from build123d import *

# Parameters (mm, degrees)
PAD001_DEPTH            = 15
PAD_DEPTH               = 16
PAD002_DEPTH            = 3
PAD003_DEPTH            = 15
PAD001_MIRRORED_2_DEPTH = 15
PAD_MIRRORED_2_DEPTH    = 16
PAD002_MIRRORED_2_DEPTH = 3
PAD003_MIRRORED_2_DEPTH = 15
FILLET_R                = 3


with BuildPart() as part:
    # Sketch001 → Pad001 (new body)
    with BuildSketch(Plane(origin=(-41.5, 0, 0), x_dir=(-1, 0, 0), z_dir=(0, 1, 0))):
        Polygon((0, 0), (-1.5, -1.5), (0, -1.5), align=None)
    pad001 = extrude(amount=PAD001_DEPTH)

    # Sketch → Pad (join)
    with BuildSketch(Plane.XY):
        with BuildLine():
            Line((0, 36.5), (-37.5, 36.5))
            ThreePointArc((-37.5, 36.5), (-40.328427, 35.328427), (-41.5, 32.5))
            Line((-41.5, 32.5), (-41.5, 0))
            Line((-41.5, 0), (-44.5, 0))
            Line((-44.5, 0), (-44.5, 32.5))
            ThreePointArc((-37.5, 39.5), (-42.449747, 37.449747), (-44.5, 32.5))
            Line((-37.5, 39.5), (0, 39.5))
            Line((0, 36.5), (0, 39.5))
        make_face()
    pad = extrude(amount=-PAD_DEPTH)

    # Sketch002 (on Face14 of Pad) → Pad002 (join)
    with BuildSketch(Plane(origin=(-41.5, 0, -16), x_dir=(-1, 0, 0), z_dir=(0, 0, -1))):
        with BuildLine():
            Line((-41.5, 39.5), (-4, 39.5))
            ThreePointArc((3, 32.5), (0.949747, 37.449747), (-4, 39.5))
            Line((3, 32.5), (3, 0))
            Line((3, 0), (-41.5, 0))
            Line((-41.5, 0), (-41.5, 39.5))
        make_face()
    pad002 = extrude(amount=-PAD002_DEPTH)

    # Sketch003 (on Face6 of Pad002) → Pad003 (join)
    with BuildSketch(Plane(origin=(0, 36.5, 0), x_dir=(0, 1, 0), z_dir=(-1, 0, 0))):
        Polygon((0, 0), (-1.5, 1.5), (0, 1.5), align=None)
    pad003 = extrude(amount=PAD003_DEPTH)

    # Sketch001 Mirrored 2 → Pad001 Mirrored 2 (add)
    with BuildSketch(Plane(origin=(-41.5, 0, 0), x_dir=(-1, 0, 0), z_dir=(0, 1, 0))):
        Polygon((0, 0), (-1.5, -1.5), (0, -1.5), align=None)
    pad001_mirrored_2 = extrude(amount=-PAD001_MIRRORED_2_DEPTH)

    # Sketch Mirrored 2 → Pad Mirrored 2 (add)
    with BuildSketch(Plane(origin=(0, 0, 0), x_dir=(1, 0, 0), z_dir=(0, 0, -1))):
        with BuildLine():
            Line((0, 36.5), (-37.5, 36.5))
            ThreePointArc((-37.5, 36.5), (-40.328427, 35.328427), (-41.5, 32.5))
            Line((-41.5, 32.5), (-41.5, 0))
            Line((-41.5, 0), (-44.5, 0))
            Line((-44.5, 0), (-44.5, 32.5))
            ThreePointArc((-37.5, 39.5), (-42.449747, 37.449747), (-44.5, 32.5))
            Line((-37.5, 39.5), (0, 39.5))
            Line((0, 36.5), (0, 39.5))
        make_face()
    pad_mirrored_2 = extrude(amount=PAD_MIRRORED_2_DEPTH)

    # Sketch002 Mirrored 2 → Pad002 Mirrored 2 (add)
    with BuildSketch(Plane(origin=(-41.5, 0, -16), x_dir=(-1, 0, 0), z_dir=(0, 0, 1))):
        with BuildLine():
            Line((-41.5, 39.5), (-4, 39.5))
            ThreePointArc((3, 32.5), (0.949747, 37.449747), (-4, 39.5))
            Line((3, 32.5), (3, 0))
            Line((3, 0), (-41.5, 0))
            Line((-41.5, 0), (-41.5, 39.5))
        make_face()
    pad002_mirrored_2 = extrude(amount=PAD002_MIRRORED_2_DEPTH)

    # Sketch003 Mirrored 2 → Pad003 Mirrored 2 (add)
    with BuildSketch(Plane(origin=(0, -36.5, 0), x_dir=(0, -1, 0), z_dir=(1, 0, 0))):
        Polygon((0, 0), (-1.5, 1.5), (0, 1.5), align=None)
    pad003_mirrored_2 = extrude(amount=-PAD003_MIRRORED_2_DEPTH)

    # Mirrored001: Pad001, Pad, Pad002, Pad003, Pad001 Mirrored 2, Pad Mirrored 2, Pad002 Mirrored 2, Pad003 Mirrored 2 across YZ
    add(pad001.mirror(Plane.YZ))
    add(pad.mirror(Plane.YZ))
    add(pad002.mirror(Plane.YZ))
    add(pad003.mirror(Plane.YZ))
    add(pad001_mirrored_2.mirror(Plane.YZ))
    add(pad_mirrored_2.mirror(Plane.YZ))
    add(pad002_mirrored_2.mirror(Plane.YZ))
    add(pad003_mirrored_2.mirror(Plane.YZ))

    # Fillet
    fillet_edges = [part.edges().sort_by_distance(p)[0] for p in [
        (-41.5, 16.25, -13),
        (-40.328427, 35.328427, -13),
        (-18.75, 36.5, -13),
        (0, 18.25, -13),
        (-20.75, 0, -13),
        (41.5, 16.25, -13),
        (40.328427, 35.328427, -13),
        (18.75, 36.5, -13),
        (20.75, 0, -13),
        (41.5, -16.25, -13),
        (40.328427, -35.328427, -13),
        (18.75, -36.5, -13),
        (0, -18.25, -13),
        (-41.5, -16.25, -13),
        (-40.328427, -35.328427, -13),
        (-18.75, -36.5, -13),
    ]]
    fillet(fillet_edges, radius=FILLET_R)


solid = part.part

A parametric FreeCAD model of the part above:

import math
import FreeCAD as App
import Part
import Sketcher

V = App.Vector


def edges_at(feature, points):
    """Names of the edges that pass closest to the given points."""
    edges = feature.Shape.Edges
    near = lambda p: min(range(len(edges)), key=lambda i: edges[i].distToShape(Part.Vertex(*p))[0])
    return sorted({f"Edge{near(p) + 1}" for p in points})


def add_polygon(sketch, points):
    """Adds a closed chain of lines whose ends are joined by coincident constraints."""
    first, n = sketch.GeometryCount, len(points)
    for a, b in zip(points, points[1:] + points[:1]):
        sketch.addGeometry(Part.LineSegment(App.Vector(*a, 0), App.Vector(*b, 0)), False)
    for i in range(n):
        sketch.addConstraint(Sketcher.Constraint("Coincident", first + i, 2, first + (i + 1) % n, 1))

doc = App.newDocument("Part")
params = doc.addObject("Spreadsheet::Sheet", "Params")
for row, (alias, value) in enumerate([
    ("sketch1_width", "1.5 mm"),
    ("pad1_length", "15 mm"),
    ("sketch2_radius", "7.000002 mm"),
    ("sketch2_radius2", "4 mm"),
    ("sketch2_width", "37.5 mm"),
    ("sketch2_height", "32.5 mm"),
    ("pad2_length", "16 mm"),
    ("sketch3_radius", "7.000002 mm"),
    ("sketch3_width", "37.5 mm"),
    ("sketch3_height", "39.5 mm"),
    ("pad3_length", "3 mm"),
    ("sketch4_width", "1.5 mm"),
    ("pad4_length", "15 mm"),
    ("sketch5_width", "1.5 mm"),
    ("pad5_length", "15 mm"),
    ("sketch6_radius", "7.000002 mm"),
    ("sketch6_radius2", "4 mm"),
    ("sketch6_width", "37.5 mm"),
    ("sketch6_height", "32.5 mm"),
    ("pad6_length", "16 mm"),
    ("sketch7_radius", "7.000002 mm"),
    ("sketch7_width", "37.5 mm"),
    ("sketch7_height", "39.5 mm"),
    ("pad7_length", "3 mm"),
    ("sketch8_width", "1.5 mm"),
    ("pad8_length", "15 mm"),
    ("fillet_radius", "3 mm"),
], start=1):
    params.set(f"A{row}", alias)
    params.set(f"B{row}", "=" + value)
    params.setAlias(f"B{row}", alias)

body = doc.addObject("PartDesign::Body", "Body")

# Sketch on XZ plane
sketch1 = doc.addObject("Sketcher::SketchObject", "Sketch")
body.addObject(sketch1)
sketch1.AttachmentSupport = (doc.XZ_Plane, [""])
sketch1.MapMode = "FlatFace"
add_polygon(sketch1, [(-41.5, 0), (-40, -1.5), (-41.5, -1.5)])  # lines 0-2
sketch1.addConstraint(Sketcher.Constraint("Horizontal", 1))
sketch1.addConstraint(Sketcher.Constraint("Vertical", 2))
sketch1.addConstraint(Sketcher.Constraint("PointOnObject", 2, 2, -1))
sketch1.addConstraint(Sketcher.Constraint("Equal", 1, 2))
sketch1.addConstraint(Sketcher.Constraint("DistanceX", 1, 2, 1, 1, 1.5))
sketch1.addConstraint(Sketcher.Constraint("DistanceX", 0, 2, -1, 1, 40.0))
sketch1.setExpression("Constraints[7]", "Params.sketch1_width")
pad1 = doc.addObject("PartDesign::Pad", "Pad")
body.addObject(pad1)
pad1.Profile = sketch1
pad1.setExpression("Length", "Params.pad1_length")
pad1.Reversed = True

# Sketch on XY plane
sketch2 = doc.addObject("Sketcher::SketchObject", "Sketch001")
body.addObject(sketch2)
sketch2.AttachmentSupport = (doc.XY_Plane, [""])
sketch2.MapMode = "FlatFace"
sketch2.addGeometry(Part.LineSegment(V(-37.5, 36.5, 0), V(0, 36.5, 0)), False)
sketch2.addGeometry(Part.LineSegment(V(0, 36.5, 0), V(0, 39.5, 0)), False)
sketch2.addGeometry(Part.LineSegment(V(0, 39.5, 0), V(-37.5, 39.5, 0)), False)
sketch2.addGeometry(Part.ArcOfCircle(Part.Circle(V(-37.499998, 32.499998, 0), V(0, 0, 1), 7.000002), math.radians(90.000013), math.radians(179.999987)), False)
sketch2.addGeometry(Part.LineSegment(V(-44.5, 32.5, 0), V(-44.5, 0, 0)), False)
sketch2.addGeometry(Part.LineSegment(V(-44.5, 0, 0), V(-41.5, 0, 0)), False)
sketch2.addGeometry(Part.LineSegment(V(-41.5, 0, 0), V(-41.5, 32.5, 0)), False)
sketch2.addGeometry(Part.ArcOfCircle(Part.Circle(V(-37.5, 32.5, 0), V(0, 0, 1), 4), math.radians(90.000006), math.radians(179.999994)), False)
sketch2.addConstraint(Sketcher.Constraint("Coincident", 0, 2, 1, 1))
sketch2.addConstraint(Sketcher.Constraint("Coincident", 1, 2, 2, 1))
sketch2.addConstraint(Sketcher.Constraint("Tangent", 2, 2, 3, 1))
sketch2.addConstraint(Sketcher.Constraint("Tangent", 3, 2, 4, 1))
sketch2.addConstraint(Sketcher.Constraint("Coincident", 4, 2, 5, 1))
sketch2.addConstraint(Sketcher.Constraint("Coincident", 5, 2, 6, 1))
sketch2.addConstraint(Sketcher.Constraint("Tangent", 6, 2, 7, 2))
sketch2.addConstraint(Sketcher.Constraint("Tangent", 7, 1, 0, 1))
sketch2.addConstraint(Sketcher.Constraint("Horizontal", 0))
sketch2.addConstraint(Sketcher.Constraint("Vertical", 1))
sketch2.addConstraint(Sketcher.Constraint("Horizontal", 2))
sketch2.addConstraint(Sketcher.Constraint("Vertical", 4))
sketch2.addConstraint(Sketcher.Constraint("Horizontal", 5))
sketch2.addConstraint(Sketcher.Constraint("Vertical", 6))
sketch2.addConstraint(Sketcher.Constraint("Coincident", 7, 3, 3, 3))
sketch2.addConstraint(Sketcher.Constraint("PointOnObject", 0, 2, -2))
sketch2.addConstraint(Sketcher.Constraint("PointOnObject", 4, 2, -1))
sketch2.addConstraint(Sketcher.Constraint("Radius", 3, 7.000002))
sketch2.addConstraint(Sketcher.Constraint("Radius", 7, 4.0))
sketch2.addConstraint(Sketcher.Constraint("DistanceX", 0, 1, 0, 2, 37.5))
sketch2.addConstraint(Sketcher.Constraint("DistanceY", 4, 2, 4, 1, 32.5))
sketch2.setExpression("Constraints[17]", "Params.sketch2_radius")
sketch2.setExpression("Constraints[18]", "Params.sketch2_radius2")
sketch2.setExpression("Constraints[19]", "Params.sketch2_width")
sketch2.setExpression("Constraints[20]", "Params.sketch2_height")
pad2 = doc.addObject("PartDesign::Pad", "Pad001")
body.addObject(pad2)
pad2.Profile = sketch2
pad2.setExpression("Length", "Params.pad2_length")
pad2.Reversed = True

# Sketch on XY plane
sketch3 = doc.addObject("Sketcher::SketchObject", "Sketch002")
body.addObject(sketch3)
sketch3.AttachmentSupport = (doc.XY_Plane, [""])
sketch3.MapMode = "FlatFace"
sketch3.AttachmentOffset = App.Placement(V(0, 0, -16), App.Rotation())
sketch3.addGeometry(Part.LineSegment(V(-37.5, 39.5, 0), V(0, 39.5, 0)), False)
sketch3.addGeometry(Part.LineSegment(V(0, 39.5, 0), V(0, 0, 0)), False)
sketch3.addGeometry(Part.LineSegment(V(0, 0, 0), V(-44.5, 0, 0)), False)
sketch3.addGeometry(Part.LineSegment(V(-44.5, 0, 0), V(-44.5, 32.5, 0)), False)
sketch3.addGeometry(Part.ArcOfCircle(Part.Circle(V(-37.499998, 32.499998, 0), V(0, 0, 1), 7.000002), math.radians(90.000013), math.radians(179.999987)), False)
sketch3.addConstraint(Sketcher.Constraint("Coincident", 0, 2, 1, 1))
sketch3.addConstraint(Sketcher.Constraint("Coincident", 1, 2, 2, 1))
sketch3.addConstraint(Sketcher.Constraint("Coincident", 2, 2, 3, 1))
sketch3.addConstraint(Sketcher.Constraint("Tangent", 3, 2, 4, 2))
sketch3.addConstraint(Sketcher.Constraint("Tangent", 4, 1, 0, 1))
sketch3.addConstraint(Sketcher.Constraint("Horizontal", 0))
sketch3.addConstraint(Sketcher.Constraint("Vertical", 1))
sketch3.addConstraint(Sketcher.Constraint("Horizontal", 2))
sketch3.addConstraint(Sketcher.Constraint("Vertical", 3))
sketch3.addConstraint(Sketcher.Constraint("Coincident", 1, 2, -1, 1))
sketch3.addConstraint(Sketcher.Constraint("Radius", 4, 7.000002))
sketch3.addConstraint(Sketcher.Constraint("DistanceX", 0, 1, 0, 2, 37.5))
sketch3.addConstraint(Sketcher.Constraint("DistanceY", 1, 2, 1, 1, 39.5))
sketch3.setExpression("Constraints[10]", "Params.sketch3_radius")
sketch3.setExpression("Constraints[11]", "Params.sketch3_width")
sketch3.setExpression("Constraints[12]", "Params.sketch3_height")
pad3 = doc.addObject("PartDesign::Pad", "Pad002")
body.addObject(pad3)
pad3.Profile = sketch3
pad3.setExpression("Length", "Params.pad3_length")

# Sketch on YZ plane
sketch4 = doc.addObject("Sketcher::SketchObject", "Sketch003")
body.addObject(sketch4)
sketch4.AttachmentSupport = (doc.YZ_Plane, [""])
sketch4.MapMode = "FlatFace"
add_polygon(sketch4, [(35, -1.5), (36.5, 0), (36.5, -1.5)])  # lines 0-2
sketch4.addConstraint(Sketcher.Constraint("Vertical", 1))
sketch4.addConstraint(Sketcher.Constraint("Horizontal", 2))
sketch4.addConstraint(Sketcher.Constraint("PointOnObject", 0, 2, -1))
sketch4.addConstraint(Sketcher.Constraint("Equal", 2, 1))
sketch4.addConstraint(Sketcher.Constraint("DistanceX", 2, 2, 2, 1, 1.5))
sketch4.addConstraint(Sketcher.Constraint("DistanceX", -1, 1, 2, 2, 35.0))
sketch4.setExpression("Constraints[7]", "Params.sketch4_width")
pad4 = doc.addObject("PartDesign::Pad", "Pad003")
body.addObject(pad4)
pad4.Profile = sketch4
pad4.setExpression("Length", "Params.pad4_length")
pad4.Reversed = True

# Sketch on XZ plane
sketch5 = doc.addObject("Sketcher::SketchObject", "Sketch004")
body.addObject(sketch5)
sketch5.AttachmentSupport = (doc.XZ_Plane, [""])
sketch5.MapMode = "FlatFace"
add_polygon(sketch5, [(-41.5, 0), (-40, -1.5), (-41.5, -1.5)])  # lines 0-2
sketch5.addConstraint(Sketcher.Constraint("Horizontal", 1))
sketch5.addConstraint(Sketcher.Constraint("Vertical", 2))
sketch5.addConstraint(Sketcher.Constraint("PointOnObject", 2, 2, -1))
sketch5.addConstraint(Sketcher.Constraint("Equal", 1, 2))
sketch5.addConstraint(Sketcher.Constraint("DistanceX", 1, 2, 1, 1, 1.5))
sketch5.addConstraint(Sketcher.Constraint("DistanceX", 0, 2, -1, 1, 40.0))
sketch5.setExpression("Constraints[7]", "Params.sketch5_width")
pad5 = doc.addObject("PartDesign::Pad", "Pad004")
body.addObject(pad5)
pad5.Profile = sketch5
pad5.setExpression("Length", "Params.pad5_length")

# Sketch on XY plane
sketch6 = doc.addObject("Sketcher::SketchObject", "Sketch005")
body.addObject(sketch6)
sketch6.AttachmentSupport = (doc.XY_Plane, [""])
sketch6.MapMode = "FlatFace"
sketch6.addGeometry(Part.LineSegment(V(-37.5, -36.5, 0), V(0, -36.5, 0)), False)
sketch6.addGeometry(Part.LineSegment(V(0, -36.5, 0), V(0, -39.5, 0)), False)
sketch6.addGeometry(Part.LineSegment(V(0, -39.5, 0), V(-37.5, -39.5, 0)), False)
sketch6.addGeometry(Part.ArcOfCircle(Part.Circle(V(-37.499998, -32.499998, 0), V(0, 0, 1), 7.000002), math.radians(-179.999987), math.radians(-90.000013)), False)
sketch6.addGeometry(Part.LineSegment(V(-44.5, -32.5, 0), V(-44.5, 0, 0)), False)
sketch6.addGeometry(Part.LineSegment(V(-44.5, 0, 0), V(-41.5, 0, 0)), False)
sketch6.addGeometry(Part.LineSegment(V(-41.5, 0, 0), V(-41.5, -32.5, 0)), False)
sketch6.addGeometry(Part.ArcOfCircle(Part.Circle(V(-37.5, -32.5, 0), V(0, 0, 1), 4), math.radians(-179.999994), math.radians(-90.000006)), False)
sketch6.addConstraint(Sketcher.Constraint("Coincident", 0, 2, 1, 1))
sketch6.addConstraint(Sketcher.Constraint("Coincident", 1, 2, 2, 1))
sketch6.addConstraint(Sketcher.Constraint("Tangent", 2, 2, 3, 2))
sketch6.addConstraint(Sketcher.Constraint("Tangent", 3, 1, 4, 1))
sketch6.addConstraint(Sketcher.Constraint("Coincident", 4, 2, 5, 1))
sketch6.addConstraint(Sketcher.Constraint("Coincident", 5, 2, 6, 1))
sketch6.addConstraint(Sketcher.Constraint("Tangent", 6, 2, 7, 1))
sketch6.addConstraint(Sketcher.Constraint("Tangent", 7, 2, 0, 1))
sketch6.addConstraint(Sketcher.Constraint("Horizontal", 0))
sketch6.addConstraint(Sketcher.Constraint("Vertical", 1))
sketch6.addConstraint(Sketcher.Constraint("Horizontal", 2))
sketch6.addConstraint(Sketcher.Constraint("Vertical", 4))
sketch6.addConstraint(Sketcher.Constraint("Horizontal", 5))
sketch6.addConstraint(Sketcher.Constraint("Vertical", 6))
sketch6.addConstraint(Sketcher.Constraint("Coincident", 7, 3, 3, 3))
sketch6.addConstraint(Sketcher.Constraint("PointOnObject", 0, 2, -2))
sketch6.addConstraint(Sketcher.Constraint("PointOnObject", 4, 2, -1))
sketch6.addConstraint(Sketcher.Constraint("Radius", 3, 7.000002))
sketch6.addConstraint(Sketcher.Constraint("Radius", 7, 4.0))
sketch6.addConstraint(Sketcher.Constraint("DistanceX", 0, 1, 0, 2, 37.5))
sketch6.addConstraint(Sketcher.Constraint("DistanceY", 4, 1, 4, 2, 32.5))
sketch6.setExpression("Constraints[17]", "Params.sketch6_radius")
sketch6.setExpression("Constraints[18]", "Params.sketch6_radius2")
sketch6.setExpression("Constraints[19]", "Params.sketch6_width")
sketch6.setExpression("Constraints[20]", "Params.sketch6_height")
pad6 = doc.addObject("PartDesign::Pad", "Pad005")
body.addObject(pad6)
pad6.Profile = sketch6
pad6.setExpression("Length", "Params.pad6_length")
pad6.Reversed = True

# Sketch on XY plane
sketch7 = doc.addObject("Sketcher::SketchObject", "Sketch006")
body.addObject(sketch7)
sketch7.AttachmentSupport = (doc.XY_Plane, [""])
sketch7.MapMode = "FlatFace"
sketch7.AttachmentOffset = App.Placement(V(0, 0, -16), App.Rotation())
sketch7.addGeometry(Part.LineSegment(V(-37.5, -39.5, 0), V(0, -39.5, 0)), False)
sketch7.addGeometry(Part.LineSegment(V(0, -39.5, 0), V(0, 0, 0)), False)
sketch7.addGeometry(Part.LineSegment(V(0, 0, 0), V(-44.5, 0, 0)), False)
sketch7.addGeometry(Part.LineSegment(V(-44.5, 0, 0), V(-44.5, -32.5, 0)), False)
sketch7.addGeometry(Part.ArcOfCircle(Part.Circle(V(-37.499998, -32.499998, 0), V(0, 0, 1), 7.000002), math.radians(-179.999987), math.radians(-90.000013)), False)
sketch7.addConstraint(Sketcher.Constraint("Coincident", 0, 2, 1, 1))
sketch7.addConstraint(Sketcher.Constraint("Coincident", 1, 2, 2, 1))
sketch7.addConstraint(Sketcher.Constraint("Coincident", 2, 2, 3, 1))
sketch7.addConstraint(Sketcher.Constraint("Tangent", 3, 2, 4, 1))
sketch7.addConstraint(Sketcher.Constraint("Tangent", 4, 2, 0, 1))
sketch7.addConstraint(Sketcher.Constraint("Horizontal", 0))
sketch7.addConstraint(Sketcher.Constraint("Vertical", 1))
sketch7.addConstraint(Sketcher.Constraint("Horizontal", 2))
sketch7.addConstraint(Sketcher.Constraint("Vertical", 3))
sketch7.addConstraint(Sketcher.Constraint("Coincident", 1, 2, -1, 1))
sketch7.addConstraint(Sketcher.Constraint("Radius", 4, 7.000002))
sketch7.addConstraint(Sketcher.Constraint("DistanceX", 0, 1, 0, 2, 37.5))
sketch7.addConstraint(Sketcher.Constraint("DistanceY", 1, 1, 1, 2, 39.5))
sketch7.setExpression("Constraints[10]", "Params.sketch7_radius")
sketch7.setExpression("Constraints[11]", "Params.sketch7_width")
sketch7.setExpression("Constraints[12]", "Params.sketch7_height")
pad7 = doc.addObject("PartDesign::Pad", "Pad006")
body.addObject(pad7)
pad7.Profile = sketch7
pad7.setExpression("Length", "Params.pad7_length")

# Sketch on YZ plane
sketch8 = doc.addObject("Sketcher::SketchObject", "Sketch007")
body.addObject(sketch8)
sketch8.AttachmentSupport = (doc.YZ_Plane, [""])
sketch8.MapMode = "FlatFace"
add_polygon(sketch8, [(-35, -1.5), (-36.5, 0), (-36.5, -1.5)])  # lines 0-2
sketch8.addConstraint(Sketcher.Constraint("Vertical", 1))
sketch8.addConstraint(Sketcher.Constraint("Horizontal", 2))
sketch8.addConstraint(Sketcher.Constraint("PointOnObject", 0, 2, -1))
sketch8.addConstraint(Sketcher.Constraint("Equal", 2, 1))
sketch8.addConstraint(Sketcher.Constraint("DistanceX", 2, 1, 2, 2, 1.5))
sketch8.addConstraint(Sketcher.Constraint("DistanceX", 2, 2, -1, 1, 35.0))
sketch8.setExpression("Constraints[7]", "Params.sketch8_width")
pad8 = doc.addObject("PartDesign::Pad", "Pad007")
body.addObject(pad8)
pad8.Profile = sketch8
pad8.setExpression("Length", "Params.pad8_length")
pad8.Reversed = True
doc.recompute()

mirrored = doc.addObject("PartDesign::Mirrored", "Mirrored")
body.addObject(mirrored)
mirrored.Originals = [pad1, pad2, pad3, pad4, pad5, pad6, pad7, pad8]
mirrored.MirrorPlane = (doc.YZ_Plane, [""])
body.Tip = mirrored
doc.recompute()

fillet = doc.addObject("PartDesign::Fillet", "Fillet")
body.addObject(fillet)
fillet.Base = (mirrored, edges_at(mirrored, [
    (-41.5, 0, -13),
    (-40.328, 35.328, -13),
    (0, 36.5, -13),
    (0, 36.5, -13),
    (-41.5, 0, -13),
    (41.5, 0, -13),
    (40.328, 35.328, -13),
    (0, 36.5, -13),
    (41.5, 0, -13),
    (41.5, 0, -13),
    (40.328, -35.328, -13),
    (0, -36.5, -13),
    (0, -36.5, -13),
    (-41.5, 0, -13),
    (-40.328, -35.328, -13),
    (0, -36.5, -13),
]))
fillet.setExpression("Radius", "Params.fillet_radius")

doc.recompute()
